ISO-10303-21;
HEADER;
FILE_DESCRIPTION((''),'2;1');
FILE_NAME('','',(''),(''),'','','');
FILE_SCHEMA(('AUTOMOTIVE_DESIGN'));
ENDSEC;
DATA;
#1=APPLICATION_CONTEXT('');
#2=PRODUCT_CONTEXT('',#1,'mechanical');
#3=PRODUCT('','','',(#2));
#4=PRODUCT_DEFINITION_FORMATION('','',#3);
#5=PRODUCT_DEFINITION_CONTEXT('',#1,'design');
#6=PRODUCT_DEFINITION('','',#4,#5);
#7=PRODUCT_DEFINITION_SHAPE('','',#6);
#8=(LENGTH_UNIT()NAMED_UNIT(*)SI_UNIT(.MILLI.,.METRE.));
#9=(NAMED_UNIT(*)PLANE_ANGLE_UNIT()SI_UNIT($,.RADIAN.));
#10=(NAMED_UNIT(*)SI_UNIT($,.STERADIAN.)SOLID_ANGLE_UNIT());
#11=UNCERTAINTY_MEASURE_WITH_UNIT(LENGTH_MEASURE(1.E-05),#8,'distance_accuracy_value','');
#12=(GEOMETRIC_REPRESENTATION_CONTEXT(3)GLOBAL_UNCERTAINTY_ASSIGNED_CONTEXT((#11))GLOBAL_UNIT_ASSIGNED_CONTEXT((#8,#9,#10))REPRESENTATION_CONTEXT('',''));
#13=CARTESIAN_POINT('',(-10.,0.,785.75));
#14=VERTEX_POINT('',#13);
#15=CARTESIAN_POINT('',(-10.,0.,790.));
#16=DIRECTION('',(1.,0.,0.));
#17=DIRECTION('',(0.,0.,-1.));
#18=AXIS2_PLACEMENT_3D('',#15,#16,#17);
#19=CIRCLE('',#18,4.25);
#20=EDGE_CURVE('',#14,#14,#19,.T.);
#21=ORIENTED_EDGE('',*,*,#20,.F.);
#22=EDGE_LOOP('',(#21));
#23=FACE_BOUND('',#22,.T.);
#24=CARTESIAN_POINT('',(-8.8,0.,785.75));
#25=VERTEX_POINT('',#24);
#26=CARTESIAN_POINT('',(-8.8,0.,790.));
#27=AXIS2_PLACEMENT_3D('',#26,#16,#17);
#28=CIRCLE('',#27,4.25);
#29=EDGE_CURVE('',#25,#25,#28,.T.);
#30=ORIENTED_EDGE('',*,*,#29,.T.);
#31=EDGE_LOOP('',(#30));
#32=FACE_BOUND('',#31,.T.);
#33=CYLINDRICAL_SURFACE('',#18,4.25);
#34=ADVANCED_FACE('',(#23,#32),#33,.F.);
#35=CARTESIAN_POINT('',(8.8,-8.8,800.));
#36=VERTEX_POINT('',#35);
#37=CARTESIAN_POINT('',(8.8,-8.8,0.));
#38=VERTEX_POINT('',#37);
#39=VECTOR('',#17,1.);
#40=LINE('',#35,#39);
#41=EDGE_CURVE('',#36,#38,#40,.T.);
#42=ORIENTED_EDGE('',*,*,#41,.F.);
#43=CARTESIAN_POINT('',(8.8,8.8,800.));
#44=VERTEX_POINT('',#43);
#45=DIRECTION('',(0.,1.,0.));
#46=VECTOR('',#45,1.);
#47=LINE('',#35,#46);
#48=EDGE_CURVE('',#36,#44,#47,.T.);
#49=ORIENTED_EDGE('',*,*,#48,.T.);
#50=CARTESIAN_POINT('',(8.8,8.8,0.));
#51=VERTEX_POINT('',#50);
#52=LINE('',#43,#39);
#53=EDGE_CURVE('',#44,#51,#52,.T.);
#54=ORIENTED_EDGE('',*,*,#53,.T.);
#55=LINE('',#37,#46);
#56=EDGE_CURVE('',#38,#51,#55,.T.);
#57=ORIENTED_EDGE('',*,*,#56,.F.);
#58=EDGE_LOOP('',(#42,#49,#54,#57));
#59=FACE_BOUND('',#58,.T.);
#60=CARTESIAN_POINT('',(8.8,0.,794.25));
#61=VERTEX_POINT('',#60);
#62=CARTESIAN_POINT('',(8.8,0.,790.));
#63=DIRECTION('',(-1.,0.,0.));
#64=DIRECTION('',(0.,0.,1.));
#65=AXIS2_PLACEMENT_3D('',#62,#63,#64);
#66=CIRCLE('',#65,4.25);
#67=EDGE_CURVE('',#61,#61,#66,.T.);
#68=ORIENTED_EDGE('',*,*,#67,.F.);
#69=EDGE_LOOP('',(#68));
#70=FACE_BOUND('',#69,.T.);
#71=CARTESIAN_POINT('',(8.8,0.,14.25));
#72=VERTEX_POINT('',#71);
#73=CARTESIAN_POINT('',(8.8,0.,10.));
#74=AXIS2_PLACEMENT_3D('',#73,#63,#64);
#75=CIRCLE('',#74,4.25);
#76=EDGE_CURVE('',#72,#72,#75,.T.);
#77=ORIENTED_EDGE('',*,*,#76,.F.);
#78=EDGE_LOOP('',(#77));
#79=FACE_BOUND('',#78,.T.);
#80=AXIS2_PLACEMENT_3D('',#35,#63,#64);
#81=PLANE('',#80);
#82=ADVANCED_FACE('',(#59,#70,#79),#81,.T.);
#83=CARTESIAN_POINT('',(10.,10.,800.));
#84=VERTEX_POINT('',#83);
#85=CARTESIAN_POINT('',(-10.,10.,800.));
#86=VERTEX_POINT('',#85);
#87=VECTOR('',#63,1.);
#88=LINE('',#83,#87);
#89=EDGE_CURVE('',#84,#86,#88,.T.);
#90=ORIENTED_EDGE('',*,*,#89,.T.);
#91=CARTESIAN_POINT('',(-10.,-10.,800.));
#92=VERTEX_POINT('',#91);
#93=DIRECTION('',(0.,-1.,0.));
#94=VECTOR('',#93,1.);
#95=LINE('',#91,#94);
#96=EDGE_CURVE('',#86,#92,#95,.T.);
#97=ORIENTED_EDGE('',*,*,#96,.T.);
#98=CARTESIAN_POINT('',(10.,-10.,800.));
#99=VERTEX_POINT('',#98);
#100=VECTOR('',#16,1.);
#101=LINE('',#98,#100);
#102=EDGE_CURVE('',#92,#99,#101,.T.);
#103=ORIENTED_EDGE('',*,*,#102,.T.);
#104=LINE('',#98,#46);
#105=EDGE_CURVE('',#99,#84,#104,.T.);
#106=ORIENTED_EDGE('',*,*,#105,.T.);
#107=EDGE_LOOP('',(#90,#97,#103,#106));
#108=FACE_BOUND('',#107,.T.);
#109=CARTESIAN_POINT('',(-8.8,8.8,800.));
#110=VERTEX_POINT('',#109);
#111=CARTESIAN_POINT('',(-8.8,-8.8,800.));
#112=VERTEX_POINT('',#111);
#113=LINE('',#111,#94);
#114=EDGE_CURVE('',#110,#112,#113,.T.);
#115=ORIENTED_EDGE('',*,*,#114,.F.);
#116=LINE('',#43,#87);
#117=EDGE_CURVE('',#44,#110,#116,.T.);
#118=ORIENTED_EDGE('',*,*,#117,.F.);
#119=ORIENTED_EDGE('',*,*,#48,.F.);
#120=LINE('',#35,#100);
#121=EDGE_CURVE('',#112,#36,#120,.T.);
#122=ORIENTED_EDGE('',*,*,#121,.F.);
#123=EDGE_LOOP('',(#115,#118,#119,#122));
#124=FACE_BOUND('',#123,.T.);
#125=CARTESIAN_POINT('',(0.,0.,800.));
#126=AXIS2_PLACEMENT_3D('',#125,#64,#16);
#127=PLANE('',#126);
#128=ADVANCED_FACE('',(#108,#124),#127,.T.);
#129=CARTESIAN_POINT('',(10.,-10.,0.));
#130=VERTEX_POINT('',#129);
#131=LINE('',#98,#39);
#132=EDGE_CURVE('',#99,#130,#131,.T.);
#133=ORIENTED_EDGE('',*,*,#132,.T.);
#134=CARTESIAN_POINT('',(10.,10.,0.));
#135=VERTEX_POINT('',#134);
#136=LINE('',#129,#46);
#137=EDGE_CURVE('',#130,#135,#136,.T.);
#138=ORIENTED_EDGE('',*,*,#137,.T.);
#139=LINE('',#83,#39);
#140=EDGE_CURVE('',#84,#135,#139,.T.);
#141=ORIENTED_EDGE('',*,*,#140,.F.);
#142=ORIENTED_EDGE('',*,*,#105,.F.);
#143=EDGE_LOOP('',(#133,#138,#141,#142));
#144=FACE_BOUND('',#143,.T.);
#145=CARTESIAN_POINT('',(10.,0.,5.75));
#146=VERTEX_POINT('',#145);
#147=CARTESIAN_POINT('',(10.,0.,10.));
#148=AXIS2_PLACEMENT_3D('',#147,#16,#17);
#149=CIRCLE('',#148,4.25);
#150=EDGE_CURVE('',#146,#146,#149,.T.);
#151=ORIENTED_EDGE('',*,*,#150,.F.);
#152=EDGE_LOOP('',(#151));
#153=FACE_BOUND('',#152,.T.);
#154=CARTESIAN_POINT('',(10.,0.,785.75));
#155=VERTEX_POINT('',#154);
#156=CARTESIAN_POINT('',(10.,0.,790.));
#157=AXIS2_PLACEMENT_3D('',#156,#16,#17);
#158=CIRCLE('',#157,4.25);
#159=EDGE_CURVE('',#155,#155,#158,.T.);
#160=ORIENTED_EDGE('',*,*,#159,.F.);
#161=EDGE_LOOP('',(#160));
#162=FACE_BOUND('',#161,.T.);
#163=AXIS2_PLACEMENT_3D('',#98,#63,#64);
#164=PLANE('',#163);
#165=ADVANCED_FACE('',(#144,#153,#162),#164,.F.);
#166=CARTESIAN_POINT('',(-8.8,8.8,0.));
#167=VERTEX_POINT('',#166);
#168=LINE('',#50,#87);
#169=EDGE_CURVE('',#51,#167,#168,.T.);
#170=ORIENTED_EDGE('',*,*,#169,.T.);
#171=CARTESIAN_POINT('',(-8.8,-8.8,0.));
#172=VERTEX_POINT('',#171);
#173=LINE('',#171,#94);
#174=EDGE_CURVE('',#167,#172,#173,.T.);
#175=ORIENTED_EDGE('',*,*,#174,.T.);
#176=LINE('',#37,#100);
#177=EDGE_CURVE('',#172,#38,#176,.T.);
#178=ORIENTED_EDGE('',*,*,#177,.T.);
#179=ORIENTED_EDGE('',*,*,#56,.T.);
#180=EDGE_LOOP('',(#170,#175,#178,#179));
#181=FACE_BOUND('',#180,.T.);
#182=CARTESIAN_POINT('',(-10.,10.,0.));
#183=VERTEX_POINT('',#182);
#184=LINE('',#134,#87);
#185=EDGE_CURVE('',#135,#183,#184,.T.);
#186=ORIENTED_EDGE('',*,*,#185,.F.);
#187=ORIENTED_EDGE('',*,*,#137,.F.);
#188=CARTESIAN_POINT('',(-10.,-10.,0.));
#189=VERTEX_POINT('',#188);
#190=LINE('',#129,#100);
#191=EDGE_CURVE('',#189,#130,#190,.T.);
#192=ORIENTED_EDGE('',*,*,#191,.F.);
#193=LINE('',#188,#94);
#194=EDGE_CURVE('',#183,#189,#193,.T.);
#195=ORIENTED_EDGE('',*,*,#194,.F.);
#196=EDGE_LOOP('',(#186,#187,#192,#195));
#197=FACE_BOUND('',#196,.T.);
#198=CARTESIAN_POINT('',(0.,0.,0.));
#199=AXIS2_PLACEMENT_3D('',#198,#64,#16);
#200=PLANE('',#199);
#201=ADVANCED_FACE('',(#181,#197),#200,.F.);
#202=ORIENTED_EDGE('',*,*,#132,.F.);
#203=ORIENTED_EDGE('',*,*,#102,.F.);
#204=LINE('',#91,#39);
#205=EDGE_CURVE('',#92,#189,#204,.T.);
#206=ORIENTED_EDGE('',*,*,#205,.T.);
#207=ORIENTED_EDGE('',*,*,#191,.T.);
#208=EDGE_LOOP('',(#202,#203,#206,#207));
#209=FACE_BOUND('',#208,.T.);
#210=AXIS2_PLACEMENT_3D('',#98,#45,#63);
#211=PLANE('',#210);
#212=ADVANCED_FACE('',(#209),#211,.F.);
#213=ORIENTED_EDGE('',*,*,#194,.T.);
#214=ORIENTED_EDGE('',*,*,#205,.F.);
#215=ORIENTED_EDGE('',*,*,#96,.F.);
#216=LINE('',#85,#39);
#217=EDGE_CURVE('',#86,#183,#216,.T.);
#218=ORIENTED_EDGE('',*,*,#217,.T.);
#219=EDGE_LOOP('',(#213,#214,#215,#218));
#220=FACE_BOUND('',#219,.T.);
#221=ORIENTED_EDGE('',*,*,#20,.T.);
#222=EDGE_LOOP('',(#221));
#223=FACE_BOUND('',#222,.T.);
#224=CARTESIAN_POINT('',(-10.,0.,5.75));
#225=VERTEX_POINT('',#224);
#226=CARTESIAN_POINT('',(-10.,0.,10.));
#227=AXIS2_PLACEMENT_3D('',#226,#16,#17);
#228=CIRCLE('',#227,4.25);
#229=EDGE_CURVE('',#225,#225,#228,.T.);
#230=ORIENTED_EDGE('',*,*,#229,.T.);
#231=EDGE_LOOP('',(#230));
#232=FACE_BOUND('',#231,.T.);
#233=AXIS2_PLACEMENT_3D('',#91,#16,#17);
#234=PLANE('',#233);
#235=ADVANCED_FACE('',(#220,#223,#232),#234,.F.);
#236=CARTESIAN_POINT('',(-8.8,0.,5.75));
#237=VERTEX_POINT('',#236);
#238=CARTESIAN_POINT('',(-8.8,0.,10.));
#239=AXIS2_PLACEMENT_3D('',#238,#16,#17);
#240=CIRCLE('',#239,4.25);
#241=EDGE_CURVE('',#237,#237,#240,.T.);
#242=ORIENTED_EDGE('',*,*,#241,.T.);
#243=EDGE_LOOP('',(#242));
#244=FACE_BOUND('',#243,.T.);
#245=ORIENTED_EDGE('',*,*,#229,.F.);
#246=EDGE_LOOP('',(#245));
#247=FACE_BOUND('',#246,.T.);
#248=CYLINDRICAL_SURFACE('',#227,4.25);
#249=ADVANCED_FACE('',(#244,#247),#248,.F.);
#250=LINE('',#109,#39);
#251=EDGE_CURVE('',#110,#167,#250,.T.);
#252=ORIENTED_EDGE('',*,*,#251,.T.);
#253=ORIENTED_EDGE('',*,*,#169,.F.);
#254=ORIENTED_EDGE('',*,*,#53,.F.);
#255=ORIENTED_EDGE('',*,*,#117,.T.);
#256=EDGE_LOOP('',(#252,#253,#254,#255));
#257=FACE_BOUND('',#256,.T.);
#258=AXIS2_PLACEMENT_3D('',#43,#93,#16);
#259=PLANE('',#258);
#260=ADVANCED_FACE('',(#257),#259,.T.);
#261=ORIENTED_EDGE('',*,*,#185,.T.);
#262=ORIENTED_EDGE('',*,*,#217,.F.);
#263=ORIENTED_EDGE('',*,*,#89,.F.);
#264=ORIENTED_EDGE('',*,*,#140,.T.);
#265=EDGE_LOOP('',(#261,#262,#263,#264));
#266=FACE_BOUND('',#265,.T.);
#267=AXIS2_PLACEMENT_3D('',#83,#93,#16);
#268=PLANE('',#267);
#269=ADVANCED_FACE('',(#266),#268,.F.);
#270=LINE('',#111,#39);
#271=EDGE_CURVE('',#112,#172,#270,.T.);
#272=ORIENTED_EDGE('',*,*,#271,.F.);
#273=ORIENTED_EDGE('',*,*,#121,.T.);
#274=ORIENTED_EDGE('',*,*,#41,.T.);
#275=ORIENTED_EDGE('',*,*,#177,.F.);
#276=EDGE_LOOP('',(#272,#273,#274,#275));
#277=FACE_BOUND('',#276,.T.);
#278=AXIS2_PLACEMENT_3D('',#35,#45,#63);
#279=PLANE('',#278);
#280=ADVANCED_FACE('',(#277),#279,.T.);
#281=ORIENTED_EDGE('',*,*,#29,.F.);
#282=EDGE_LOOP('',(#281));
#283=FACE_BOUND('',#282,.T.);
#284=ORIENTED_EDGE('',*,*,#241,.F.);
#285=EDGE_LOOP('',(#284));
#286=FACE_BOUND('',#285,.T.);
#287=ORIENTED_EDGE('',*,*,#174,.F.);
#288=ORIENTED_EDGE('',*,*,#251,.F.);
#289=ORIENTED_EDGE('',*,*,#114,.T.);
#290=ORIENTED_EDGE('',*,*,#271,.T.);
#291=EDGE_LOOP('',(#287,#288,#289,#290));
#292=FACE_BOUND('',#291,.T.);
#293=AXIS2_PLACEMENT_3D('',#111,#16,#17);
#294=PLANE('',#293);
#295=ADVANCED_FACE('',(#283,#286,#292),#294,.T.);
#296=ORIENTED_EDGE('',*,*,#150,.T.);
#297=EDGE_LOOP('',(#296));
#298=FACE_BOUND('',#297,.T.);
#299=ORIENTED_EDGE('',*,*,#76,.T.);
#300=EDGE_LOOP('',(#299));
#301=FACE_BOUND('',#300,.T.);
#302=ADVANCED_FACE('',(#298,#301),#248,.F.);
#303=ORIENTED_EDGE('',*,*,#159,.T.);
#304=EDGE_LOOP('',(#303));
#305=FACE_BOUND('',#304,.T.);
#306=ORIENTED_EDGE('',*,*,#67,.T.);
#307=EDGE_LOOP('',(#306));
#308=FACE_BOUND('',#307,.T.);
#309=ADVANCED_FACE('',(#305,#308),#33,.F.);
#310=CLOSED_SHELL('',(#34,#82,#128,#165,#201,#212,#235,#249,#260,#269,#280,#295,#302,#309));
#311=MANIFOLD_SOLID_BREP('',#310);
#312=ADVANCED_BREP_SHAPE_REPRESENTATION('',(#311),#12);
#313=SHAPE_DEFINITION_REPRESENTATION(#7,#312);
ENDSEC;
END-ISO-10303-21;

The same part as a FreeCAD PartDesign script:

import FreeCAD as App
import Part
import Sketcher

V = App.Vector
Q = App.Units.Quantity

doc = App.newDocument("Part")
body = doc.addObject("PartDesign::Body", "Body")

sketch1 = body.newObject("Sketcher::SketchObject", "Sketch")
sketch1.AttachmentSupport = (doc.getObject("XY_Plane"), [""])
sketch1.MapMode = "FlatFace"
sketch1.addGeometry(Part.LineSegment(V(-10, 10, 0), V(-10, -10, 0)), False)
sketch1.addGeometry(Part.LineSegment(V(-10, -10, 0), V(10, -10, 0)), False)
sketch1.addGeometry(Part.LineSegment(V(10, -10, 0), V(10, 10, 0)), False)
sketch1.addGeometry(Part.LineSegment(V(10, 10, 0), V(-10, 10, 0)), False)
sketch1.addGeometry(Part.LineSegment(V(8.8, -8.8, 0), V(-8.8, -8.8, 0)), False)
sketch1.addGeometry(Part.LineSegment(V(-8.8, -8.8, 0), V(-8.8, 8.8, 0)), False)
sketch1.addGeometry(Part.LineSegment(V(-8.8, 8.8, 0), V(8.8, 8.8, 0)), False)
sketch1.addGeometry(Part.LineSegment(V(8.8, 8.8, 0), V(8.8, -8.8, 0)), False)
sketch1.addConstraint(Sketcher.Constraint("Coincident", 0, 2, 1, 1))
sketch1.addConstraint(Sketcher.Constraint("Coincident", 1, 2, 2, 1))
sketch1.addConstraint(Sketcher.Constraint("Coincident", 2, 2, 3, 1))
sketch1.addConstraint(Sketcher.Constraint("Coincident", 3, 2, 0, 1))
sketch1.addConstraint(Sketcher.Constraint("Coincident", 4, 2, 5, 1))
sketch1.addConstraint(Sketcher.Constraint("Coincident", 5, 2, 6, 1))
sketch1.addConstraint(Sketcher.Constraint("Coincident", 6, 2, 7, 1))
sketch1.addConstraint(Sketcher.Constraint("Coincident", 7, 2, 4, 1))
sketch1.addConstraint(Sketcher.Constraint("Vertical", 0))
sketch1.addConstraint(Sketcher.Constraint("Horizontal", 1))
sketch1.addConstraint(Sketcher.Constraint("Vertical", 2))
sketch1.addConstraint(Sketcher.Constraint("Horizontal", 3))
sketch1.addConstraint(Sketcher.Constraint("Horizontal", 4))
sketch1.addConstraint(Sketcher.Constraint("Vertical", 5))
sketch1.addConstraint(Sketcher.Constraint("Horizontal", 6))
sketch1.addConstraint(Sketcher.Constraint("Vertical", 7))
sketch1.addConstraint(Sketcher.Constraint("Symmetric", 0, 2, 2, 2, -1, 1))
sketch1.addConstraint(Sketcher.Constraint("Symmetric", 4, 2, 6, 2, -1, 1))
sketch1.addConstraint(Sketcher.Constraint("Equal", 3, 0))
sketch1.addConstraint(Sketcher.Constraint("Equal", 6, 5))
sketch1.addConstraint(Sketcher.Constraint("DistanceX", 1, 1, 1, 2, Q("20 mm")))
sketch1.addConstraint(Sketcher.Constraint("DistanceX", 4, 2, 4, 1, Q("17.6 mm")))
pad1 = body.newObject("PartDesign::Pad", "Pad")
pad1.Profile = sketch1
pad1.Length = 800

sketch2 = body.newObject("Sketcher::SketchObject", "Sketch001")
sketch2.AttachmentSupport = (doc.getObject("YZ_Plane"), [""])
sketch2.MapMode = "FlatFace"
sketch2.AttachmentOffset = App.Placement(V(0, 0, 10), App.Rotation())
sketch2.addGeometry(Part.Circle(V(0, 10, 0), V(0, 0, 1), 4.25), False)
sketch2.addGeometry(Part.Circle(V(0, 790, 0), V(0, 0, 1), 4.25), False)
sketch2.addConstraint(Sketcher.Constraint("Equal", 0, 1))
sketch2.addConstraint(Sketcher.Constraint("PointOnObject", 0, 3, -2))
sketch2.addConstraint(Sketcher.Constraint("PointOnObject", 1, 3, -2))
sketch2.addConstraint(Sketcher.Constraint("Diameter", 0, Q("8.5 mm")))
sketch2.addConstraint(Sketcher.Constraint("DistanceY", -1, 1, 0, 3, Q("10 mm")))
sketch2.addConstraint(Sketcher.Constraint("DistanceY", -1, 1, 1, 3, Q("790 mm")))
pocket1 = body.newObject("PartDesign::Pocket", "Pocket")
pocket1.Profile = sketch2
pocket1.Type = "ThroughAll"

doc.recompute()
